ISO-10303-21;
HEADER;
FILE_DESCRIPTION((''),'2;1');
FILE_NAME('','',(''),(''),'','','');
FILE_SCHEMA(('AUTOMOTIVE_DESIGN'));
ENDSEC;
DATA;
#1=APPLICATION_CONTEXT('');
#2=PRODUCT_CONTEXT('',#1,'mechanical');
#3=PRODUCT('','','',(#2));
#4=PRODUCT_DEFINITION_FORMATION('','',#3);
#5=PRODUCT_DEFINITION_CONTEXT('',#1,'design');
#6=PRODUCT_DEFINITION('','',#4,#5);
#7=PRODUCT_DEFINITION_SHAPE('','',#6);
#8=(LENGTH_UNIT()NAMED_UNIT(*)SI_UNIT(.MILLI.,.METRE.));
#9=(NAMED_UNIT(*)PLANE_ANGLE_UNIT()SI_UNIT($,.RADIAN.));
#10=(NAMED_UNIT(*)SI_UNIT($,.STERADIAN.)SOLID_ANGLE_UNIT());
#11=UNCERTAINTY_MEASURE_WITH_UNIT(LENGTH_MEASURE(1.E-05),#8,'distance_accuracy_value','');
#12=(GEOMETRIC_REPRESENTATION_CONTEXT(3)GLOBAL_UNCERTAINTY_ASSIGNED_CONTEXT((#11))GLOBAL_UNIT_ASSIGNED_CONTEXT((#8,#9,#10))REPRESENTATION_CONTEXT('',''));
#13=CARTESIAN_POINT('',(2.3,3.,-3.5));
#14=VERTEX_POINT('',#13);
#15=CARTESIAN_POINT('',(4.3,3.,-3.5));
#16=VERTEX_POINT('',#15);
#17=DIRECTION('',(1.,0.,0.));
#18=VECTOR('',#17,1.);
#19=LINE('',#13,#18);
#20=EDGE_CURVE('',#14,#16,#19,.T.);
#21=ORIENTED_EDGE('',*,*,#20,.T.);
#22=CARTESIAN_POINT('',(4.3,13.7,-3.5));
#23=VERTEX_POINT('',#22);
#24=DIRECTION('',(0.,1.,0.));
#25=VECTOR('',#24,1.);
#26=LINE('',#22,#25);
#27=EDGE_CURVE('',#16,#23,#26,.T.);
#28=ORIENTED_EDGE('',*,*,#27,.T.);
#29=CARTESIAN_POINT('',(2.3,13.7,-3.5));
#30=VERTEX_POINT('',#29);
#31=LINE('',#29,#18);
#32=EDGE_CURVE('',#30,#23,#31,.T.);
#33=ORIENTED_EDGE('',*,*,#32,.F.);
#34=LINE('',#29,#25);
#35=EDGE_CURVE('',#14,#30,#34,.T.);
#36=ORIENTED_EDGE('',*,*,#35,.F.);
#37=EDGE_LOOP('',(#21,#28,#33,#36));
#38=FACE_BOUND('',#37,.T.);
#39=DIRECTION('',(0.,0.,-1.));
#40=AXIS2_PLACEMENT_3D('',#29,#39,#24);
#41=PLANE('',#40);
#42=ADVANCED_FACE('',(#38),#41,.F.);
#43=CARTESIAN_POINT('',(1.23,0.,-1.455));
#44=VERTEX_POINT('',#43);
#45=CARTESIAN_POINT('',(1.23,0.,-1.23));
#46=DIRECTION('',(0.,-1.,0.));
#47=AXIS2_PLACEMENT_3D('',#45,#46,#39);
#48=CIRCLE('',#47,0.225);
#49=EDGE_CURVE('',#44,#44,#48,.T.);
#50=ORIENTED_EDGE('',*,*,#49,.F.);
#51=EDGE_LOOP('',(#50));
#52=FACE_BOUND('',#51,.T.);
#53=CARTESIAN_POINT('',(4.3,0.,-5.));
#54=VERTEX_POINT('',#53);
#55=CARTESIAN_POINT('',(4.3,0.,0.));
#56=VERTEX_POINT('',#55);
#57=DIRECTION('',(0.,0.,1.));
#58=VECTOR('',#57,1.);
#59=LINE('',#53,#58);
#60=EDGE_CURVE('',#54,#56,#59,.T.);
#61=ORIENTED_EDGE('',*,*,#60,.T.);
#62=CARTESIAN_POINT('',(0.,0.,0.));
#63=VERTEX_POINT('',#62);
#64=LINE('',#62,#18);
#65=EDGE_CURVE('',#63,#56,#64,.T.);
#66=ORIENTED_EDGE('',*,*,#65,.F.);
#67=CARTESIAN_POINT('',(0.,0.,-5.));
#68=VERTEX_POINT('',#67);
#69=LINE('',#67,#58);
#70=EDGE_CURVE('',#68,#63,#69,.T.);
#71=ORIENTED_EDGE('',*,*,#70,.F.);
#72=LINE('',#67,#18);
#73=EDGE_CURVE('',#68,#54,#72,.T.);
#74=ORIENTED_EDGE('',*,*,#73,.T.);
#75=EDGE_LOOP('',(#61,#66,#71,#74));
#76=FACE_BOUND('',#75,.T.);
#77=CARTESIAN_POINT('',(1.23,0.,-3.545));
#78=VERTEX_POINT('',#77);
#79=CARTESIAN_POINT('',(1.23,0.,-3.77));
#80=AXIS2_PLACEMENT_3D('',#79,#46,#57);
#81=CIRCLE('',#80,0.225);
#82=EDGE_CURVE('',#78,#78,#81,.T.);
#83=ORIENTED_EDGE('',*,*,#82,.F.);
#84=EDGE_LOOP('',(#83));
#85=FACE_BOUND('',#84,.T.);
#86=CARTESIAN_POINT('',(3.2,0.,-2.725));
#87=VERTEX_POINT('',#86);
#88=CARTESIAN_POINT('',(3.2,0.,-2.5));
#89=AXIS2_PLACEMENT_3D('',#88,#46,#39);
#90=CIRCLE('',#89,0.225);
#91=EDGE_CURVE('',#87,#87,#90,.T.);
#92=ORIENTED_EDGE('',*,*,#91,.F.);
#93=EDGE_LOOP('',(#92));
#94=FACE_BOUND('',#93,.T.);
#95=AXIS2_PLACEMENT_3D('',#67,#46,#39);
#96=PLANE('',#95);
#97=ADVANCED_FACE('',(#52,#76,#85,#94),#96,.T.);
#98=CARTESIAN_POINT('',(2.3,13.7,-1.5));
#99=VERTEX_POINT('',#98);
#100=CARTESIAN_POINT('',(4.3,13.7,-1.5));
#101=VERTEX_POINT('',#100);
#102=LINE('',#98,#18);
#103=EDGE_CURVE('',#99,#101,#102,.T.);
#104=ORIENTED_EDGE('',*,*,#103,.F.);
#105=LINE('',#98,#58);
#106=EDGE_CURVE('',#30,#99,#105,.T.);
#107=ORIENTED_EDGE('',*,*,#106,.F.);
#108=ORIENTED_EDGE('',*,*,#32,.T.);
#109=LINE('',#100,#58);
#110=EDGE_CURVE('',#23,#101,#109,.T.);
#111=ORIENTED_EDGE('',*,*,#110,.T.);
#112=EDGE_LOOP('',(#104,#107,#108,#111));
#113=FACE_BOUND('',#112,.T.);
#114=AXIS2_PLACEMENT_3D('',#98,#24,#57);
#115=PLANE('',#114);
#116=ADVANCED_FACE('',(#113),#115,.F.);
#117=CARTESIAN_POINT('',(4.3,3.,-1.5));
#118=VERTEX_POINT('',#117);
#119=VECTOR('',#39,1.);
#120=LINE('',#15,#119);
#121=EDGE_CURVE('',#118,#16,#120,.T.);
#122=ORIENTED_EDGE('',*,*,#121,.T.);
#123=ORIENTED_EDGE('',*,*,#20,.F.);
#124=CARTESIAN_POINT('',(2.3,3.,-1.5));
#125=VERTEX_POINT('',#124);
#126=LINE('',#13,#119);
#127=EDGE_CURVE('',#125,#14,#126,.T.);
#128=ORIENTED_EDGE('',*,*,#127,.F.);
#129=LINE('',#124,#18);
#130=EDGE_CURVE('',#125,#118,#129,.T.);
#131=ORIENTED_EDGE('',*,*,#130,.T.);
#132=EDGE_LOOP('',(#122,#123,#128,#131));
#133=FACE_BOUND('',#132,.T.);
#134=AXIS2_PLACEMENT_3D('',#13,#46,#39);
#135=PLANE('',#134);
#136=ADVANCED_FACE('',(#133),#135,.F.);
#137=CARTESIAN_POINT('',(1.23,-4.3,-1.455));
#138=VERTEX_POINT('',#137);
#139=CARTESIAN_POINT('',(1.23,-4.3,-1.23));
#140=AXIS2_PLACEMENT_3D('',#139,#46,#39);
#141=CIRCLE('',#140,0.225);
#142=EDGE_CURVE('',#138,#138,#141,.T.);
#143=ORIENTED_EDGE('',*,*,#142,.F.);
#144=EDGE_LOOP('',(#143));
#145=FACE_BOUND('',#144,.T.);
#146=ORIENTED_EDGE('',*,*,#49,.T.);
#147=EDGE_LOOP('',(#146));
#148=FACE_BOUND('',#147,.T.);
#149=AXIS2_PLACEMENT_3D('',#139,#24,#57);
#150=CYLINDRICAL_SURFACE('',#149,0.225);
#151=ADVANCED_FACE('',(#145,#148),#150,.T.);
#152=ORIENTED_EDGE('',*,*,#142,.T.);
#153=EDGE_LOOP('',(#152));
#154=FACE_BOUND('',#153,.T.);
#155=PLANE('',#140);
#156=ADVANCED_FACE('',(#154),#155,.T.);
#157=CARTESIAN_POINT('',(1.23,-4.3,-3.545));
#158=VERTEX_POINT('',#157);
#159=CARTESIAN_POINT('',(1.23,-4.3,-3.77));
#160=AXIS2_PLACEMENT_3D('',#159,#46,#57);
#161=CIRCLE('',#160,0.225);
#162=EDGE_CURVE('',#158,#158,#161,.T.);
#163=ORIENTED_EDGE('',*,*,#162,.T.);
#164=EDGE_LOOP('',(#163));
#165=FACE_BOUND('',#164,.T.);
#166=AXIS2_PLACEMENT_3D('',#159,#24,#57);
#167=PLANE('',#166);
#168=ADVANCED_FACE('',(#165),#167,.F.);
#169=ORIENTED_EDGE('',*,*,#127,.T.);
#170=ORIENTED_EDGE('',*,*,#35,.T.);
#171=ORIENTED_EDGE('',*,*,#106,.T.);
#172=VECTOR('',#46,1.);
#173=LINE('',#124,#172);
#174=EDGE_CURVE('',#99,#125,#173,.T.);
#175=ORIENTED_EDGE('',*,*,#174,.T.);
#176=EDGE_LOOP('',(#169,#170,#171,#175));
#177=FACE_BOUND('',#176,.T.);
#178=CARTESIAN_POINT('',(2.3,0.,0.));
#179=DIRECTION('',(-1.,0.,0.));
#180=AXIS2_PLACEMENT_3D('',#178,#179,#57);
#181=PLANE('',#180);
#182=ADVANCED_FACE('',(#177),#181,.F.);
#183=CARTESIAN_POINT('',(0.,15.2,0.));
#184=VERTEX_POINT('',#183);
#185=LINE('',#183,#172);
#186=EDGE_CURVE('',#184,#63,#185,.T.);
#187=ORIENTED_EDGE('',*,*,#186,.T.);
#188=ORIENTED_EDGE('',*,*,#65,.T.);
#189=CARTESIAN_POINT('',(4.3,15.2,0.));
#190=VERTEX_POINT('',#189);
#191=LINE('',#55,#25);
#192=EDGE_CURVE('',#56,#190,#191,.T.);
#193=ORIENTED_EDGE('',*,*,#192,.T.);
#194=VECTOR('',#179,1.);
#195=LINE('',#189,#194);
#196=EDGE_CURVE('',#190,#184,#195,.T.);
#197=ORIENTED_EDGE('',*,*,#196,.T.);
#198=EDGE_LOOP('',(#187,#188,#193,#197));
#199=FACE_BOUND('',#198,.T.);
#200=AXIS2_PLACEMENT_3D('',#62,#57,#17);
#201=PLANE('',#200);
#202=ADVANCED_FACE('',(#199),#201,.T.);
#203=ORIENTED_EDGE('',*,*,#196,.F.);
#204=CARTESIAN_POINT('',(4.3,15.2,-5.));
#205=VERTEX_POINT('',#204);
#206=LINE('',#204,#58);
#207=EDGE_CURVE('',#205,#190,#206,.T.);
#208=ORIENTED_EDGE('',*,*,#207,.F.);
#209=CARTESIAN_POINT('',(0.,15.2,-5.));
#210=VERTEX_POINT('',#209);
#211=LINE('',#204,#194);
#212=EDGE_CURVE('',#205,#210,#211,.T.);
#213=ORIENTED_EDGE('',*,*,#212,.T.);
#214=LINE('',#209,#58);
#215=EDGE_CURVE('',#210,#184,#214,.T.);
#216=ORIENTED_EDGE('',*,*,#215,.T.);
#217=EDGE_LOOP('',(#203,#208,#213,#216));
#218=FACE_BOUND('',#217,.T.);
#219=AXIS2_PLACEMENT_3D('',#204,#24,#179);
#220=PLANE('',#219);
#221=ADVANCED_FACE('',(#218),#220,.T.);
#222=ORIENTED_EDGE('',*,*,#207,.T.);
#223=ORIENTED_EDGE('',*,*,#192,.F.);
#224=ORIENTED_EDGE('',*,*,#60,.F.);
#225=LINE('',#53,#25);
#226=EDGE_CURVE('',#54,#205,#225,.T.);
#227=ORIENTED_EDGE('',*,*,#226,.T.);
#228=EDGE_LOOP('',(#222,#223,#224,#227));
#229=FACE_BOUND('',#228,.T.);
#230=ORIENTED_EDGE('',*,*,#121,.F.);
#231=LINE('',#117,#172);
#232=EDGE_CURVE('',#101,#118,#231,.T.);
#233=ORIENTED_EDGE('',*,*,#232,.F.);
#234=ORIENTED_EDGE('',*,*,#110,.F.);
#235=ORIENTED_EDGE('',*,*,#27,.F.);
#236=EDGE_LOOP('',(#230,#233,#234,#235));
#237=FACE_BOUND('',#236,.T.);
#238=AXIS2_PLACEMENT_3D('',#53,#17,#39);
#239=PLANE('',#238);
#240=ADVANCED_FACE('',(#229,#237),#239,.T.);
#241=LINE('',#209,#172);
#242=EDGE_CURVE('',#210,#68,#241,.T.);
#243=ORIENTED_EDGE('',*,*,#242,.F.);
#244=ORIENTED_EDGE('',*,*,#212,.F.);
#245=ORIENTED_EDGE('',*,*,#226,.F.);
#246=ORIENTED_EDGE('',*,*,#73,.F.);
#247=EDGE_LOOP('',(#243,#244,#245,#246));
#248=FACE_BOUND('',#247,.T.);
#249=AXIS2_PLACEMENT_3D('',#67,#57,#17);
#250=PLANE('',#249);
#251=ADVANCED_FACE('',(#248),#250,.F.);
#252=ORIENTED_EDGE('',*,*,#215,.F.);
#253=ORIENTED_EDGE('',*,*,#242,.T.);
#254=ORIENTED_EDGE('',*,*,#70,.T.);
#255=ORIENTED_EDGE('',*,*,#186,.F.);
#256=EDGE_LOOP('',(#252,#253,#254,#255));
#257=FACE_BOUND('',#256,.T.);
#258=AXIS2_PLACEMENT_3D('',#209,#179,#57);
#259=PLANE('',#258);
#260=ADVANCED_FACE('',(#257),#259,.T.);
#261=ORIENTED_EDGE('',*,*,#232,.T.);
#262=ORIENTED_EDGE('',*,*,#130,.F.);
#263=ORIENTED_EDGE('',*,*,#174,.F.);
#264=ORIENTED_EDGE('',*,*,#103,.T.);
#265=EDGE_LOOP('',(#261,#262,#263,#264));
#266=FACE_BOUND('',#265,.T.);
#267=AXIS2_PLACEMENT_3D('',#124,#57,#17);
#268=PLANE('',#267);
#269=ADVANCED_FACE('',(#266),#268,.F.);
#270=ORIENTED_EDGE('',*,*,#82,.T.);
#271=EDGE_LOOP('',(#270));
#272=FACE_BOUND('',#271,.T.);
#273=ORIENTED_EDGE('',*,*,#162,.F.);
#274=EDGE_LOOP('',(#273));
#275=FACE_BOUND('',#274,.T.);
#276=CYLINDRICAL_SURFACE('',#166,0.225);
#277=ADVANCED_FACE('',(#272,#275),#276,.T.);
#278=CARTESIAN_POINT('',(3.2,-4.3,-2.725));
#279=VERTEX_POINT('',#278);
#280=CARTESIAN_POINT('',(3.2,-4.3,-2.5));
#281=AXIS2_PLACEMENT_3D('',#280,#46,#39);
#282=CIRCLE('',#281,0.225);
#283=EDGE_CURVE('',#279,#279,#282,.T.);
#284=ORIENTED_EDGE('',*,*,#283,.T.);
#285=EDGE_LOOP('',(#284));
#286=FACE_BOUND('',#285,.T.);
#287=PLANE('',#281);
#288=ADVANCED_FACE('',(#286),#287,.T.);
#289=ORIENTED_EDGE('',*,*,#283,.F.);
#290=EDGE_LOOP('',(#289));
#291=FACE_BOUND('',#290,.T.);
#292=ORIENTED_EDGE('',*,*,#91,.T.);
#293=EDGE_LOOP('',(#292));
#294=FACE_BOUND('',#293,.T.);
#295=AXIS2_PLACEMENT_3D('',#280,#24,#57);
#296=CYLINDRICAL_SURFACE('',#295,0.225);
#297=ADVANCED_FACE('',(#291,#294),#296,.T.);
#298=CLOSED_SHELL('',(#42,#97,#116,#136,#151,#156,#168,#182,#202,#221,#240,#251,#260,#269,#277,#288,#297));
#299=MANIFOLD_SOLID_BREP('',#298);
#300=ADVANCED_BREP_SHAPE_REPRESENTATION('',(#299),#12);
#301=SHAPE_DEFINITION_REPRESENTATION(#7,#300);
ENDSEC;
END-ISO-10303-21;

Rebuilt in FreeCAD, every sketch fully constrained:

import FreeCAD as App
import Part
import Sketcher
from FreeCAD import Vector


def add_polygon(sketch, points):
    """Adds a closed chain of lines whose ends are joined by coincident constraints."""
    first, n = sketch.GeometryCount, len(points)
    for a, b in zip(points, points[1:] + points[:1]):
        sketch.addGeometry(Part.LineSegment(App.Vector(*a, 0), App.Vector(*b, 0)), False)
    for i in range(n):
        sketch.addConstraint(Sketcher.Constraint("Coincident", first + i, 2, first + (i + 1) % n, 1))

doc = App.newDocument("Part")
body = doc.addObject("PartDesign::Body", "Body")

sketch1 = body.newObject("Sketcher::SketchObject", "Sketch")
sketch1.AttachmentSupport = (doc.getObject("XY_Plane"), [""])
sketch1.MapMode = "FlatFace"
add_polygon(sketch1, [(0, 15.2), (0, 0), (4.3, 0), (4.3, 15.2)])
sketch1.addConstraint(Sketcher.Constraint("Vertical", 0))
sketch1.addConstraint(Sketcher.Constraint("Horizontal", 1))
sketch1.addConstraint(Sketcher.Constraint("Vertical", 2))
sketch1.addConstraint(Sketcher.Constraint("Horizontal", 3))
sketch1.addConstraint(Sketcher.Constraint("Coincident", 0, 2, -1, 1))
sketch1.addConstraint(Sketcher.Constraint("DistanceX", 1, 1, 1, 2, 4.3))
sketch1.addConstraint(Sketcher.Constraint("DistanceY", 0, 2, 0, 1, 15.2))
pad1 = body.newObject("PartDesign::Pad", "Pad")
pad1.Profile = sketch1
pad1.Length = 5
pad1.Reversed = True

sketch2 = body.newObject("Sketcher::SketchObject", "Sketch001")
sketch2.AttachmentSupport = (doc.getObject("YZ_Plane"), [""])
sketch2.MapMode = "FlatFace"
sketch2.AttachmentOffset = App.Placement(Vector(0, 0, 4.3), App.Rotation())
add_polygon(sketch2, [(13.7, -1.5), (3, -1.5), (3, -3.5), (13.7, -3.5)])
sketch2.addConstraint(Sketcher.Constraint("Horizontal", 0))
sketch2.addConstraint(Sketcher.Constraint("Vertical", 1))
sketch2.addConstraint(Sketcher.Constraint("Horizontal", 2))
sketch2.addConstraint(Sketcher.Constraint("Vertical", 3))
sketch2.addConstraint(Sketcher.Constraint("DistanceY", 1, 2, 1, 1, 2.0))
sketch2.addConstraint(Sketcher.Constraint("DistanceX", 0, 2, 0, 1, 10.7))
sketch2.addConstraint(Sketcher.Constraint("DistanceX", -1, 1, 0, 2, 3.0))
sketch2.addConstraint(Sketcher.Constraint("DistanceY", 0, 2, -1, 1, 1.5))
pocket1 = body.newObject("PartDesign::Pocket", "Pocket")
pocket1.Profile = sketch2
pocket1.Length = 2

sketch3 = body.newObject("Sketcher::SketchObject", "Sketch002")
sketch3.AttachmentSupport = (doc.getObject("XZ_Plane"), [""])
sketch3.MapMode = "FlatFace"
sketch3.addGeometry(Part.Circle(Vector(1.23, -1.23, 0), Vector(0, 0, 1), 0.23), False)
sketch3.addGeometry(Part.Circle(Vector(1.23, -3.77, 0), Vector(0, 0, 1), 0.23), False)
sketch3.addGeometry(Part.Circle(Vector(3.2, -2.5, 0), Vector(0, 0, 1), 0.23), False)
sketch3.addConstraint(Sketcher.Constraint("Equal", 0, 1))
sketch3.addConstraint(Sketcher.Constraint("Equal", 1, 2))
sketch3.addConstraint(Sketcher.Constraint("Vertical", 0, 3, 1, 3))
sketch3.addConstraint(Sketcher.Constraint("Diameter", 0, 0.45))
sketch3.addConstraint(Sketcher.Constraint("DistanceX", -1, 1, 2, 3, 3.2))
sketch3.addConstraint(Sketcher.Constraint("DistanceY", 2, 3, -1, 1, 2.5))
sketch3.addConstraint(Sketcher.Constraint("DistanceX", -1, 1, 0, 3, 1.23))
sketch3.addConstraint(Sketcher.Constraint("DistanceY", 0, 3, -1, 1, 1.23))
sketch3.addConstraint(Sketcher.Constraint("DistanceY", 1, 3, -1, 1, 3.77))
pad2 = body.newObject("PartDesign::Pad", "Pad001")
pad2.Profile = sketch3
pad2.Length = 4.3

doc.recompute()
